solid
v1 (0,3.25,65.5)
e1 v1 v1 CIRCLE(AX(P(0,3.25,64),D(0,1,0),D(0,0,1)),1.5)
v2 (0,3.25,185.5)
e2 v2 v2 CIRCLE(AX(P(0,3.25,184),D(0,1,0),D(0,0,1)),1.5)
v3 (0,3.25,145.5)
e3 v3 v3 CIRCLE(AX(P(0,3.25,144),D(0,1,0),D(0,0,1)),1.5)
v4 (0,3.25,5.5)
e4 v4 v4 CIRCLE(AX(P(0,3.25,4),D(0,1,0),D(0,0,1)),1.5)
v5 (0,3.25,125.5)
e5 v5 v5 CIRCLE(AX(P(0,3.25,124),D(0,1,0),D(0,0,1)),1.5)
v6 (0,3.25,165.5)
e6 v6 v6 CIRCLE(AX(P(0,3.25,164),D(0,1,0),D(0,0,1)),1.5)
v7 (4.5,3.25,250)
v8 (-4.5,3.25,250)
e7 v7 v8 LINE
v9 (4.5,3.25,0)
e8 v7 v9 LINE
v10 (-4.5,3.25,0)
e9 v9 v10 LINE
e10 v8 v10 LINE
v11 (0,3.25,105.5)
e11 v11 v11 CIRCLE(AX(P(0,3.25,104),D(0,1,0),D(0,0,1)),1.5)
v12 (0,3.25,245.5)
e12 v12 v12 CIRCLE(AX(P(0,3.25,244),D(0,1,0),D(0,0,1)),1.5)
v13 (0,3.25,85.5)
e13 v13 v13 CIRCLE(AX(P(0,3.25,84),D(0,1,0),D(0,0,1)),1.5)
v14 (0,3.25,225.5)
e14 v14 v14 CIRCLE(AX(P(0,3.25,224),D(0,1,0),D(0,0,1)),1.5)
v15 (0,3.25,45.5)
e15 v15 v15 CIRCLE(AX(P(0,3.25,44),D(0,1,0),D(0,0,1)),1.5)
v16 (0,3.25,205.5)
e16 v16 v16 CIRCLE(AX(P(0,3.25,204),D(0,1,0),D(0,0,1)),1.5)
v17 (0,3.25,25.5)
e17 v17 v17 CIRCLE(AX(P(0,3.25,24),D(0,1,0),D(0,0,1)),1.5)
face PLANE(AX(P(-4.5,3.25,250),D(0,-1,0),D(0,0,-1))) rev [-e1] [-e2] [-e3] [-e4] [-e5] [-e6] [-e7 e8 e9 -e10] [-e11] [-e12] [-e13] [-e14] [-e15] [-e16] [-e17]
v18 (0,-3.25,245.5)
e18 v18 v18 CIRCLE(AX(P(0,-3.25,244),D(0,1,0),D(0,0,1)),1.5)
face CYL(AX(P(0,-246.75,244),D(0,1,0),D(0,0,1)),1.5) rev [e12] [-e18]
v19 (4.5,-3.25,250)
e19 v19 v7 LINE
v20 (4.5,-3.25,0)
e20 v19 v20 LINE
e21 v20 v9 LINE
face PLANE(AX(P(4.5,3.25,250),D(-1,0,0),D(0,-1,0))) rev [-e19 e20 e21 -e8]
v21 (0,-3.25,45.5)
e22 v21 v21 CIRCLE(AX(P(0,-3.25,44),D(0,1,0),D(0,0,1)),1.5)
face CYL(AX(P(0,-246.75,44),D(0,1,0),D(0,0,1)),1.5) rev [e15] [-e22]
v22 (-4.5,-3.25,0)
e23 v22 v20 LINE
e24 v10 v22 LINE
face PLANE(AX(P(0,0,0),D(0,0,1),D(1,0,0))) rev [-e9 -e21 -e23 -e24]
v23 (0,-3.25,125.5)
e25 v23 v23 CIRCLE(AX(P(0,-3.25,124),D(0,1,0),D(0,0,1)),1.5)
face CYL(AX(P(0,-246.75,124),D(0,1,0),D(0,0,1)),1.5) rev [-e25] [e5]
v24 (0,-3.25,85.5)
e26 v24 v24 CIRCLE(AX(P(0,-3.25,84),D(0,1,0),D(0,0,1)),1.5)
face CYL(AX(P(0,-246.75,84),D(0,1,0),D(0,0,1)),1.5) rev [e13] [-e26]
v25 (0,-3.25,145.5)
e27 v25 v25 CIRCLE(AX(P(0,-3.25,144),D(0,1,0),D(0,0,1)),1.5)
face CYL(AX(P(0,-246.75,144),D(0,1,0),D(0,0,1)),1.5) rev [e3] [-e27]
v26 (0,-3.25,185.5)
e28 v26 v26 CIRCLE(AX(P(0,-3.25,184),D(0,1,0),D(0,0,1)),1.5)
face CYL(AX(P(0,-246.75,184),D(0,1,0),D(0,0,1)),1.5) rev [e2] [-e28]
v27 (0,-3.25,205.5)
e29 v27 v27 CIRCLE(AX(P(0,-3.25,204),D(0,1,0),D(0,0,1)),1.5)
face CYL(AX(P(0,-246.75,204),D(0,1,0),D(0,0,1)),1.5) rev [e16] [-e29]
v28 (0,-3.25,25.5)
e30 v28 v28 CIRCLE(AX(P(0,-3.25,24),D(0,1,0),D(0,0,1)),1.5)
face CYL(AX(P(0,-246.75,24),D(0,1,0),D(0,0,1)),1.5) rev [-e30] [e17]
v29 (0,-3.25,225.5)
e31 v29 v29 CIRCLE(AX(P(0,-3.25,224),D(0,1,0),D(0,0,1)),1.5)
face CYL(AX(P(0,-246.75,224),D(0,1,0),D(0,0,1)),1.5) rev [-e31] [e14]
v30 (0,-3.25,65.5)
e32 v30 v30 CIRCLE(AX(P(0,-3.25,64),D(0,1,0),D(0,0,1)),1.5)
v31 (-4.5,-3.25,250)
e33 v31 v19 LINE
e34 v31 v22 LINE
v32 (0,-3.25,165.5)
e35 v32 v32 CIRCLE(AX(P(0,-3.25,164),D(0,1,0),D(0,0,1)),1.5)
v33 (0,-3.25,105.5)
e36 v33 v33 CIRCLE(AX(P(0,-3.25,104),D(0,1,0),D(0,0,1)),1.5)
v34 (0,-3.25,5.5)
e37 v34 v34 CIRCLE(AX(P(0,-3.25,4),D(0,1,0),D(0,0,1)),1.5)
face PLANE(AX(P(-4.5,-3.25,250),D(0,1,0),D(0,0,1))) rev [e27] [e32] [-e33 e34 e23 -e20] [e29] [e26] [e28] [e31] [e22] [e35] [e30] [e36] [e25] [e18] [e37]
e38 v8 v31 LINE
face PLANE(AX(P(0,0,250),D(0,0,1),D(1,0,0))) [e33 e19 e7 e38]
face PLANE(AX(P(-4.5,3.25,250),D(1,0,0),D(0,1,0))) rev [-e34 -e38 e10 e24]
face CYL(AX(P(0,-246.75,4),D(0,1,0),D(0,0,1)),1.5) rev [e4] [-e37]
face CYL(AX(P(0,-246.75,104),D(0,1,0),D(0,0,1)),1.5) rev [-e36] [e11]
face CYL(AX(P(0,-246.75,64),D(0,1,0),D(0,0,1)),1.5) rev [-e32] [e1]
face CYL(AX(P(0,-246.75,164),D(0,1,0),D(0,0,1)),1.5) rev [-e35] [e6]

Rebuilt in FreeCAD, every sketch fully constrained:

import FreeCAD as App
import Part
import Sketcher

V = App.Vector
Q = App.Units.Quantity


def add_polygon(sketch, points):
    """Adds a closed chain of lines whose ends are joined by coincident constraints."""
    first, n = sketch.GeometryCount, len(points)
    for a, b in zip(points, points[1:] + points[:1]):
        sketch.addGeometry(Part.LineSegment(App.Vector(*a, 0), App.Vector(*b, 0)), False)
    for i in range(n):
        sketch.addConstraint(Sketcher.Constraint("Coincident", first + i, 2, first + (i + 1) % n, 1))

doc = App.newDocument("Part")
body = doc.addObject("PartDesign::Body", "Body")

# Sketch on XY plane
sketch1 = doc.addObject("Sketcher::SketchObject", "Sketch")
body.addObject(sketch1)
sketch1.AttachmentSupport = (doc.XY_Plane, [""])
sketch1.MapMode = "FlatFace"
add_polygon(sketch1, [(-4, 3), (-4, -3), (4, -3), (4, 3)])  # lines 0-3
sketch1.addConstraint([
    Sketcher.Constraint("Vertical", 0),
    Sketcher.Constraint("Horizontal", 1),
    Sketcher.Constraint("Vertical", 2),
    Sketcher.Constraint("Horizontal", 3),
    Sketcher.Constraint("Symmetric", 0, 2, 2, 2, -1, 1),
    Sketcher.Constraint("DistanceX", 1, 1, 1, 2, Q("9 mm")),
    Sketcher.Constraint("DistanceY", 0, 2, 0, 1, Q("6.5 mm")),
])
pad1 = doc.addObject("PartDesign::Pad", "Pad")
body.addObject(pad1)
pad1.Profile = sketch1
pad1.Length = 250

# Sketch on XZ plane
sketch2 = doc.addObject("Sketcher::SketchObject", "Sketch001")
body.addObject(sketch2)
sketch2.AttachmentSupport = (doc.XZ_Plane, [""])
sketch2.MapMode = "FlatFace"
sketch2.AttachmentOffset = App.Placement(V(0, 0, -3.25), App.Rotation())
sketch2.addGeometry([
    Part.Circle(V(0, 4, 0), V(0, 0, 1), 1.5),  # 0
    Part.Circle(V(0, 24, 0), V(0, 0, 1), 1.5),  # 1
    Part.Circle(V(0, 44, 0), V(0, 0, 1), 1.5),  # 2
    Part.Circle(V(0, 64, 0), V(0, 0, 1), 1.5),  # 3
    Part.Circle(V(0, 84, 0), V(0, 0, 1), 1.5),  # 4
    Part.Circle(V(0, 104, 0), V(0, 0, 1), 1.5),  # 5
    Part.Circle(V(0, 124, 0), V(0, 0, 1), 1.5),  # 6
    Part.Circle(V(0, 144, 0), V(0, 0, 1), 1.5),  # 7
    Part.Circle(V(0, 164, 0), V(0, 0, 1), 1.5),  # 8
    Part.Circle(V(0, 184, 0), V(0, 0, 1), 1.5),  # 9
    Part.Circle(V(0, 204, 0), V(0, 0, 1), 1.5),  # 10
    Part.Circle(V(0, 224, 0), V(0, 0, 1), 1.5),  # 11
    Part.Circle(V(0, 244, 0), V(0, 0, 1), 1.5),  # 12
], False)
sketch2.addConstraint([
    Sketcher.Constraint("Equal", 0, 1),
    Sketcher.Constraint("Equal", 1, 2),
    Sketcher.Constraint("Equal", 2, 3),
    Sketcher.Constraint("Equal", 3, 4),
    Sketcher.Constraint("Equal", 4, 5),
    Sketcher.Constraint("Equal", 5, 6),
    Sketcher.Constraint("Equal", 6, 7),
    Sketcher.Constraint("Equal", 7, 8),
    Sketcher.Constraint("Equal", 8, 9),
    Sketcher.Constraint("Equal", 9, 10),
    Sketcher.Constraint("Equal", 10, 11),
    Sketcher.Constraint("Equal", 11, 12),
    Sketcher.Constraint("PointOnObject", 0, 3, -2),
    Sketcher.Constraint("PointOnObject", 1, 3, -2),
    Sketcher.Constraint("PointOnObject", 2, 3, -2),
    Sketcher.Constraint("PointOnObject", 3, 3, -2),
    Sketcher.Constraint("PointOnObject", 4, 3, -2),
    Sketcher.Constraint("PointOnObject", 5, 3, -2),
    Sketcher.Constraint("PointOnObject", 6, 3, -2),
    Sketcher.Constraint("PointOnObject", 7, 3, -2),
    Sketcher.Constraint("PointOnObject", 8, 3, -2),
    Sketcher.Constraint("PointOnObject", 9, 3, -2),
    Sketcher.Constraint("PointOnObject", 10, 3, -2),
    Sketcher.Constraint("PointOnObject", 11, 3, -2),
    Sketcher.Constraint("PointOnObject", 12, 3, -2),
    Sketcher.Constraint("Diameter", 0, Q("3 mm")),
    Sketcher.Constraint("DistanceY", -1, 1, 0, 3, Q("4 mm")),
    Sketcher.Constraint("DistanceY", -1, 1, 1, 3, Q("24 mm")),
    Sketcher.Constraint("DistanceY", -1, 1, 2, 3, Q("44 mm")),
    Sketcher.Constraint("DistanceY", -1, 1, 3, 3, Q("64 mm")),
    Sketcher.Constraint("DistanceY", -1, 1, 4, 3, Q("84 mm")),
    Sketcher.Constraint("DistanceY", -1, 1, 5, 3, Q("104 mm")),
    Sketcher.Constraint("DistanceY", -1, 1, 6, 3, Q("124 mm")),
    Sketcher.Constraint("DistanceY", -1, 1, 7, 3, Q("144 mm")),
    Sketcher.Constraint("DistanceY", -1, 1, 8, 3, Q("164 mm")),
    Sketcher.Constraint("DistanceY", -1, 1, 9, 3, Q("184 mm")),
    Sketcher.Constraint("DistanceY", -1, 1, 10, 3, Q("204 mm")),
    Sketcher.Constraint("DistanceY", -1, 1, 11, 3, Q("224 mm")),
    Sketcher.Constraint("DistanceY", -1, 1, 12, 3, Q("244 mm")),
])
pocket1 = doc.addObject("PartDesign::Pocket", "Pocket")
body.addObject(pocket1)
pocket1.Profile = sketch2
pocket1.Length = 250
pocket1.Reversed = True

doc.recompute()
